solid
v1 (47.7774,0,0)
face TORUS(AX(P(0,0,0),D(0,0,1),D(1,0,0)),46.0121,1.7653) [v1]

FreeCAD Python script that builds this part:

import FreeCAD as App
import Part
import Sketcher
from FreeCAD import Vector
Q = App.Units.Quantity

doc = App.newDocument("Part")
params = doc.addObject("Spreadsheet::Sheet", "Params")
for row, (alias, value) in enumerate([
    ("sketch1_diameter", "0.139 in"),
    ("revolution_angle", "360 deg"),
], start=1):
    params.set(f"A{row}", alias)
    params.set(f"B{row}", "=" + value)
    params.setAlias(f"B{row}", alias)

body = doc.addObject("PartDesign::Body", "Body")

# Sketch on YZ plane
sketch1 = body.newObject("Sketcher::SketchObject", "Sketch")
sketch1.AttachmentSupport = (doc.getObject("YZ_Plane"), [""])
sketch1.MapMode = "FlatFace"
sketch1.addGeometry(Part.Circle(Vector(-46, 0, 0), Vector(0, 0, 1), 1.8), False)
sketch1.addConstraint(Sketcher.Constraint("PointOnObject", 0, 3, -1))
sketch1.addConstraint(Sketcher.Constraint("Diameter", 0, Q("0.139 in")))
sketch1.addConstraint(Sketcher.Constraint("DistanceX", 0, 3, -1, 1, Q("1.8115 in")))
sketch1.setExpression("Constraints[1]", "Params.sketch1_diameter")
revolution = body.newObject("PartDesign::Revolution", "Revolution")
revolution.Profile = sketch1
revolution.ReferenceAxis = (sketch1, ["V_Axis"])
revolution.setExpression("Angle", "Params.revolution_angle")

doc.recompute()
